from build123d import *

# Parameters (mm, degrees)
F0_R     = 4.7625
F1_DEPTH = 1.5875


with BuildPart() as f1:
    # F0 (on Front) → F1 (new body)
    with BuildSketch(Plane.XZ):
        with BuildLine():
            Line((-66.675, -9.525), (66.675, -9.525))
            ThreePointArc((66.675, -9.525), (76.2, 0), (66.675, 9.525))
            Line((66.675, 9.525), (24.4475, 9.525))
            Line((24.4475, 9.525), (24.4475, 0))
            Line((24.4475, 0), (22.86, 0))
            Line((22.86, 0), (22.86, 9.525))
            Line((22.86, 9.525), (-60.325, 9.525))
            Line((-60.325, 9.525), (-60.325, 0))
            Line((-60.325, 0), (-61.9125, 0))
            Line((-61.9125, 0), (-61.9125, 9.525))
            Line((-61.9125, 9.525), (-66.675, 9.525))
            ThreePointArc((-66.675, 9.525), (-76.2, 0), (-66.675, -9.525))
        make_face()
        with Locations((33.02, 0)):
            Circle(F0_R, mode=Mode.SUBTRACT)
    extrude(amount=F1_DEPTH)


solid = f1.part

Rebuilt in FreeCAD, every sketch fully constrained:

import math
import FreeCAD as App
import Part
import Sketcher
from FreeCAD import Vector
Q = App.Units.Quantity

doc = App.newDocument("Part")
params = doc.addObject("Spreadsheet::Sheet", "Params")
for row, (alias, value) in enumerate([
    ("sketch1_diameter", "0.375 in"),
    ("sketch1_radius", "0.375 in"),
    ("sketch1_width", "5.25 in"),
    ("sketch1_width2", "0.0625 in"),
    ("sketch1_width3", "3.275 in"),
    ("pad1_length", "0.0625 in"),
], start=1):
    params.set(f"A{row}", alias)
    params.set(f"B{row}", "=" + value)
    params.setAlias(f"B{row}", alias)

body = doc.addObject("PartDesign::Body", "Body")

# Sketch on XZ plane
sketch1 = body.newObject("Sketcher::SketchObject", "Sketch")
sketch1.AttachmentSupport = (doc.getObject("XZ_Plane"), [""])
sketch1.MapMode = "FlatFace"
sketch1.addGeometry(Part.LineSegment(Vector(-66.675, -9.525, 0), Vector(66.675, -9.525, 0)), False)
sketch1.addGeometry(Part.ArcOfCircle(Part.Circle(Vector(66.675, 0, 0), Vector(0, 0, 1), 9.525), math.radians(-90), math.radians(90)), False)
sketch1.addGeometry(Part.LineSegment(Vector(66.675, 9.525, 0), Vector(24.4475, 9.525, 0)), False)
sketch1.addGeometry(Part.LineSegment(Vector(24.4475, 9.525, 0), Vector(24.4475, 0, 0)), False)
sketch1.addGeometry(Part.LineSegment(Vector(24.4475, 0, 0), Vector(22.86, 0, 0)), False)
sketch1.addGeometry(Part.LineSegment(Vector(22.86, 0, 0), Vector(22.86, 9.525, 0)), False)
sketch1.addGeometry(Part.LineSegment(Vector(22.86, 9.525, 0), Vector(-60.325, 9.525, 0)), False)
sketch1.addGeometry(Part.LineSegment(Vector(-60.325, 9.525, 0), Vector(-60.325, 0, 0)), False)
sketch1.addGeometry(Part.LineSegment(Vector(-60.325, 0, 0), Vector(-61.9125, 0, 0)), False)
sketch1.addGeometry(Part.LineSegment(Vector(-61.9125, 0, 0), Vector(-61.9125, 9.525, 0)), False)
sketch1.addGeometry(Part.LineSegment(Vector(-61.9125, 9.525, 0), Vector(-66.675, 9.525, 0)), False)
sketch1.addGeometry(Part.ArcOfCircle(Part.Circle(Vector(-66.675, 0, 0), Vector(0, 0, 1), 9.525), math.radians(90), math.radians(270)), False)
sketch1.addGeometry(Part.Circle(Vector(33.02, 0, 0), Vector(0, 0, 1), 4.7625), False)
sketch1.addConstraint(Sketcher.Constraint("Tangent", 0, 2, 1, 1))
sketch1.addConstraint(Sketcher.Constraint("Tangent", 1, 2, 2, 1))
sketch1.addConstraint(Sketcher.Constraint("Coincident", 2, 2, 3, 1))
sketch1.addConstraint(Sketcher.Constraint("Coincident", 3, 2, 4, 1))
sketch1.addConstraint(Sketcher.Constraint("Coincident", 4, 2, 5, 1))
sketch1.addConstraint(Sketcher.Constraint("Coincident", 5, 2, 6, 1))
sketch1.addConstraint(Sketcher.Constraint("Coincident", 6, 2, 7, 1))
sketch1.addConstraint(Sketcher.Constraint("Coincident", 7, 2, 8, 1))
sketch1.addConstraint(Sketcher.Constraint("Coincident", 8, 2, 9, 1))
sketch1.addConstraint(Sketcher.Constraint("Coincident", 9, 2, 10, 1))
sketch1.addConstraint(Sketcher.Constraint("Tangent", 10, 2, 11, 1))
sketch1.addConstraint(Sketcher.Constraint("Tangent", 11, 2, 0, 1))
sketch1.addConstraint(Sketcher.Constraint("Horizontal", 0))
sketch1.addConstraint(Sketcher.Constraint("Horizontal", 2))
sketch1.addConstraint(Sketcher.Constraint("Vertical", 3))
sketch1.addConstraint(Sketcher.Constraint("Horizontal", 4))
sketch1.addConstraint(Sketcher.Constraint("Vertical", 5))
sketch1.addConstraint(Sketcher.Constraint("Horizontal", 6))
sketch1.addConstraint(Sketcher.Constraint("Vertical", 7))
sketch1.addConstraint(Sketcher.Constraint("Horizontal", 8))
sketch1.addConstraint(Sketcher.Constraint("Vertical", 9))
sketch1.addConstraint(Sketcher.Constraint("Horizontal", 10))
sketch1.addConstraint(Sketcher.Constraint("Equal", 1, 11))
sketch1.addConstraint(Sketcher.Constraint("Symmetric", 1, 3, 11, 3, -1, 1))
sketch1.addConstraint(Sketcher.Constraint("PointOnObject", 12, 3, -1))
sketch1.addConstraint(Sketcher.Constraint("PointOnObject", 3, 2, -1))
sketch1.addConstraint(Sketcher.Constraint("PointOnObject", 7, 2, -1))
sketch1.addConstraint(Sketcher.Constraint("Horizontal", 2, 2, 5, 2))
sketch1.addConstraint(Sketcher.Constraint("Equal", 4, 8))
sketch1.addConstraint(Sketcher.Constraint("Diameter", 12, Q("0.375 in")))
sketch1.addConstraint(Sketcher.Constraint("Radius", 1, Q("0.375 in")))
sketch1.addConstraint(Sketcher.Constraint("DistanceX", 0, 1, 0, 2, Q("5.25 in")))
sketch1.addConstraint(Sketcher.Constraint("DistanceX", -1, 1, 12, 3, Q("1.3 in")))
sketch1.addConstraint(Sketcher.Constraint("DistanceX", -1, 1, 4, 2, Q("0.9 in")))
sketch1.addConstraint(Sketcher.Constraint("DistanceX", 4, 2, 4, 1, Q("0.0625 in")))
sketch1.addConstraint(Sketcher.Constraint("DistanceX", 6, 2, 6, 1, Q("3.275 in")))
sketch1.setExpression("Constraints[29]", "Params.sketch1_diameter")
sketch1.setExpression("Constraints[30]", "Params.sketch1_radius")
sketch1.setExpression("Constraints[31]", "Params.sketch1_width")
sketch1.setExpression("Constraints[34]", "Params.sketch1_width2")
sketch1.setExpression("Constraints[35]", "Params.sketch1_width3")
pad1 = body.newObject("PartDesign::Pad", "Pad")
pad1.Profile = sketch1
pad1.setExpression("Length", "Params.pad1_length")

doc.recompute()
